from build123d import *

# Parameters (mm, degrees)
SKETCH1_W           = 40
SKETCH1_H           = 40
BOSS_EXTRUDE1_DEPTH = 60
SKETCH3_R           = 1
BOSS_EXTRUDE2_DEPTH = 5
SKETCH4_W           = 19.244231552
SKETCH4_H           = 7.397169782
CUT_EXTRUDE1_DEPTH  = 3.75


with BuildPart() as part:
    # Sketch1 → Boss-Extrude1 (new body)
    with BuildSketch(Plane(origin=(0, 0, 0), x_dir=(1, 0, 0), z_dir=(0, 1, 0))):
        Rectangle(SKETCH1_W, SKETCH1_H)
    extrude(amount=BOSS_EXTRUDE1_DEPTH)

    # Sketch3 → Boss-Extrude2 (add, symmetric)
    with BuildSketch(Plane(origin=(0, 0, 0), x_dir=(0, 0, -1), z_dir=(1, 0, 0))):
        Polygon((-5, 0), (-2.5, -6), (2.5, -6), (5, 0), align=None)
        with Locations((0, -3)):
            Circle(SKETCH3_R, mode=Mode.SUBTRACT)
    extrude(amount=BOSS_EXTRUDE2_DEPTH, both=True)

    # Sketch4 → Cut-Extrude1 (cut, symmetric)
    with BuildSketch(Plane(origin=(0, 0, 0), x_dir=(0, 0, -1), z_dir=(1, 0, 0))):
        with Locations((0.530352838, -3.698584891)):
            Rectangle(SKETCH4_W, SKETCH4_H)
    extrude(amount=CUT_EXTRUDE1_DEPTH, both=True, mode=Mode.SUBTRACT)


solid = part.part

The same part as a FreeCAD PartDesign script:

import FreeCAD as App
import Part
import Sketcher


def add_polygon(sketch, points):
    """Adds a closed chain of lines whose ends are joined by coincident constraints."""
    first, n = sketch.GeometryCount, len(points)
    for a, b in zip(points, points[1:] + points[:1]):
        sketch.addGeometry(Part.LineSegment(App.Vector(*a, 0), App.Vector(*b, 0)), False)
    for i in range(n):
        sketch.addConstraint(Sketcher.Constraint("Coincident", first + i, 2, first + (i + 1) % n, 1))

doc = App.newDocument("Part")
body = doc.addObject("PartDesign::Body", "Body")

sketch1 = body.newObject("Sketcher::SketchObject", "Sketch")
sketch1.AttachmentSupport = (doc.getObject("XZ_Plane"), [""])
sketch1.MapMode = "FlatFace"
add_polygon(sketch1, [(-20, -20), (-20, 20), (20, 20), (20, -20)])
sketch1.addConstraint(Sketcher.Constraint("Vertical", 0))
sketch1.addConstraint(Sketcher.Constraint("Horizontal", 1))
sketch1.addConstraint(Sketcher.Constraint("Vertical", 2))
sketch1.addConstraint(Sketcher.Constraint("Horizontal", 3))
sketch1.addConstraint(Sketcher.Constraint("Symmetric", 0, 2, 2, 2, -1, 1))
sketch1.addConstraint(Sketcher.Constraint("Equal", 3, 0))
sketch1.addConstraint(Sketcher.Constraint("DistanceX", 1, 1, 1, 2, 40.0))
pad1 = body.newObject("PartDesign::Pad", "Pad")
pad1.Profile = sketch1
pad1.Length = 60
pad1.Reversed = True

sketch2 = body.newObject("Sketcher::SketchObject", "Sketch001")
sketch2.AttachmentSupport = (doc.getObject("YZ_Plane"), [""])
sketch2.MapMode = "FlatFace"
add_polygon(sketch2, [(0, 5), (-6, 2.5), (-6, -2.5), (0, -5)])
sketch2.addGeometry(Part.Circle(App.Vector(-3, 0, 0), App.Vector(0, 0, 1), 1), False)
sketch2.addConstraint(Sketcher.Constraint("Vertical", 1))
sketch2.addConstraint(Sketcher.Constraint("Vertical", 3))
sketch2.addConstraint(Sketcher.Constraint("Symmetric", 2, 2, 3, 2, -1, 1))
sketch2.addConstraint(Sketcher.Constraint("PointOnObject", 4, 3, -1))
sketch2.addConstraint(Sketcher.Constraint("Equal", 0, 2))
sketch2.addConstraint(Sketcher.Constraint("Diameter", 4, 2.0))
sketch2.addConstraint(Sketcher.Constraint("DistanceY", 1, 2, 1, 1, 5.0))
sketch2.addConstraint(Sketcher.Constraint("DistanceY", 3, 1, 3, 2, 10.0))
sketch2.addConstraint(Sketcher.Constraint("DistanceX", 4, 3, -1, 1, 3.0))
sketch2.addConstraint(Sketcher.Constraint("DistanceX", 0, 2, -1, 1, 6.0))
pad2 = body.newObject("PartDesign::Pad", "Pad001")
pad2.Profile = sketch2
pad2.Length = 10
pad2.Midplane = True

sketch3 = body.newObject("Sketcher::SketchObject", "Sketch002")
sketch3.AttachmentSupport = (doc.getObject("YZ_Plane"), [""])
sketch3.MapMode = "FlatFace"
add_polygon(sketch3, [(0, 9.091763), (-7.39717, 9.091763), (-7.39717, -10.152469), (0, -10.152469)])
sketch3.addConstraint(Sketcher.Constraint("Horizontal", 0))
sketch3.addConstraint(Sketcher.Constraint("Vertical", 1))
sketch3.addConstraint(Sketcher.Constraint("Horizontal", 2))
sketch3.addConstraint(Sketcher.Constraint("Vertical", 3))
sketch3.addConstraint(Sketcher.Constraint("PointOnObject", 2, 2, -2))
sketch3.addConstraint(Sketcher.Constraint("DistanceX", 0, 2, 0, 1, 7.39717))
sketch3.addConstraint(Sketcher.Constraint("DistanceY", 1, 2, 1, 1, 19.244232))
sketch3.addConstraint(Sketcher.Constraint("DistanceY", 1, 2, -1, 1, 10.152469))
pocket1 = body.newObject("PartDesign::Pocket", "Pocket")
pocket1.Profile = sketch3
pocket1.Length = 7.5
pocket1.Midplane = True

doc.recompute()
